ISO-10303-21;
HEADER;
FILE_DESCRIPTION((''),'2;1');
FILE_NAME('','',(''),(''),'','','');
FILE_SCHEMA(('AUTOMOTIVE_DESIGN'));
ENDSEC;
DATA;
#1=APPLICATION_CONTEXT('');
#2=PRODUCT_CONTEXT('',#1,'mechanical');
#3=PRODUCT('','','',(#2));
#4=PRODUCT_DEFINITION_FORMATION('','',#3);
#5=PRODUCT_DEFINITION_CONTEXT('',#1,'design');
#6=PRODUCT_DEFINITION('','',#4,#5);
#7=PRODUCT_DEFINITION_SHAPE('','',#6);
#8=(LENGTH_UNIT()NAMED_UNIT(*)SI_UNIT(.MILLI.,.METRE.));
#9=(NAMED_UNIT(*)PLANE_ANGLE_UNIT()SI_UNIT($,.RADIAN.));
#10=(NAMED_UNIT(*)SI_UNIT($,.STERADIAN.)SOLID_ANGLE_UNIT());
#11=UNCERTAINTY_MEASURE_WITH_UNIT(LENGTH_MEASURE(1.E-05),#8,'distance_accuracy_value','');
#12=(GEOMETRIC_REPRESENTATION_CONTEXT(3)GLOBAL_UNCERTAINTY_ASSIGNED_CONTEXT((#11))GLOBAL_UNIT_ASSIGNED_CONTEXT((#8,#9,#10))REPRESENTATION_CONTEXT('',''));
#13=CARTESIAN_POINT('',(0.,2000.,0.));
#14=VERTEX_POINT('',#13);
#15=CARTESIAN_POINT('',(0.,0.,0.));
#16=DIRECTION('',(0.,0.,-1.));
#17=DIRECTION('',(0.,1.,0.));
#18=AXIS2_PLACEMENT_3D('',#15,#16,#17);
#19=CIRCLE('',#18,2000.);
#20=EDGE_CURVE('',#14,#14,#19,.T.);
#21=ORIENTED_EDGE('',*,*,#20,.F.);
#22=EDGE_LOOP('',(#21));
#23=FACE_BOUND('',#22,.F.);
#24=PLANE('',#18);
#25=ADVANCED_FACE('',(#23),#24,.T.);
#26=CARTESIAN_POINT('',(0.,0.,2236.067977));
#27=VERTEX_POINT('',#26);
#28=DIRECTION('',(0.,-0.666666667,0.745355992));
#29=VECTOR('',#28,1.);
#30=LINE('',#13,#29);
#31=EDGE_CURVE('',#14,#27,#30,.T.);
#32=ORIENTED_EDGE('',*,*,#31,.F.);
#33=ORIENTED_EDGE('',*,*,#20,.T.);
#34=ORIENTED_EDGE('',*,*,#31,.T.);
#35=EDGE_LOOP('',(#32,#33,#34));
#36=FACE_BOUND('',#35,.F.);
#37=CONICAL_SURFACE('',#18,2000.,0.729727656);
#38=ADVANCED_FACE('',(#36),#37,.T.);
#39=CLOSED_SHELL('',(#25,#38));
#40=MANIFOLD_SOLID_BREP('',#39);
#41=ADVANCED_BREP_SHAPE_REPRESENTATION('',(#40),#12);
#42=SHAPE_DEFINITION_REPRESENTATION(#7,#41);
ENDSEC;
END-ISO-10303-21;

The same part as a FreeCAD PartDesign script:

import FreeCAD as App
import Part
import Sketcher

V = App.Vector

doc = App.newDocument("Part")
body = doc.addObject("PartDesign::Body", "Body")

# Sketch on YZ plane
sketch1 = body.newObject("Sketcher::SketchObject", "Sketch")
sketch1.AttachmentSupport = (doc.getObject("YZ_Plane"), [""])
sketch1.MapMode = "FlatFace"
sketch1.addGeometry([
    Part.LineSegment(V(0, 2236, 0), V(0, 0, 0)),
    Part.LineSegment(V(0, 0, 0), V(2000, 0, 0)),
    Part.LineSegment(V(2000, 0, 0), V(0, 2236, 0)),
], False)
sketch1.addConstraint([
    Sketcher.Constraint("Coincident", 0, 2, 1, 1),
    Sketcher.Constraint("Coincident", 1, 2, 2, 1),
    Sketcher.Constraint("Coincident", 2, 2, 0, 1),
    Sketcher.Constraint("Vertical", 0),
    Sketcher.Constraint("Horizontal", 1),
    Sketcher.Constraint("Coincident", 0, 2, -1, 1),
    Sketcher.Constraint("DistanceX", 1, 1, 1, 2, 2000.0),
    Sketcher.Constraint("Distance", 2, 3000.0),
])
revolution = body.newObject("PartDesign::Revolution", "Revolution")
revolution.Profile = sketch1
revolution.ReferenceAxis = (sketch1, ["V_Axis"])
revolution.Angle = 360

doc.recompute()
